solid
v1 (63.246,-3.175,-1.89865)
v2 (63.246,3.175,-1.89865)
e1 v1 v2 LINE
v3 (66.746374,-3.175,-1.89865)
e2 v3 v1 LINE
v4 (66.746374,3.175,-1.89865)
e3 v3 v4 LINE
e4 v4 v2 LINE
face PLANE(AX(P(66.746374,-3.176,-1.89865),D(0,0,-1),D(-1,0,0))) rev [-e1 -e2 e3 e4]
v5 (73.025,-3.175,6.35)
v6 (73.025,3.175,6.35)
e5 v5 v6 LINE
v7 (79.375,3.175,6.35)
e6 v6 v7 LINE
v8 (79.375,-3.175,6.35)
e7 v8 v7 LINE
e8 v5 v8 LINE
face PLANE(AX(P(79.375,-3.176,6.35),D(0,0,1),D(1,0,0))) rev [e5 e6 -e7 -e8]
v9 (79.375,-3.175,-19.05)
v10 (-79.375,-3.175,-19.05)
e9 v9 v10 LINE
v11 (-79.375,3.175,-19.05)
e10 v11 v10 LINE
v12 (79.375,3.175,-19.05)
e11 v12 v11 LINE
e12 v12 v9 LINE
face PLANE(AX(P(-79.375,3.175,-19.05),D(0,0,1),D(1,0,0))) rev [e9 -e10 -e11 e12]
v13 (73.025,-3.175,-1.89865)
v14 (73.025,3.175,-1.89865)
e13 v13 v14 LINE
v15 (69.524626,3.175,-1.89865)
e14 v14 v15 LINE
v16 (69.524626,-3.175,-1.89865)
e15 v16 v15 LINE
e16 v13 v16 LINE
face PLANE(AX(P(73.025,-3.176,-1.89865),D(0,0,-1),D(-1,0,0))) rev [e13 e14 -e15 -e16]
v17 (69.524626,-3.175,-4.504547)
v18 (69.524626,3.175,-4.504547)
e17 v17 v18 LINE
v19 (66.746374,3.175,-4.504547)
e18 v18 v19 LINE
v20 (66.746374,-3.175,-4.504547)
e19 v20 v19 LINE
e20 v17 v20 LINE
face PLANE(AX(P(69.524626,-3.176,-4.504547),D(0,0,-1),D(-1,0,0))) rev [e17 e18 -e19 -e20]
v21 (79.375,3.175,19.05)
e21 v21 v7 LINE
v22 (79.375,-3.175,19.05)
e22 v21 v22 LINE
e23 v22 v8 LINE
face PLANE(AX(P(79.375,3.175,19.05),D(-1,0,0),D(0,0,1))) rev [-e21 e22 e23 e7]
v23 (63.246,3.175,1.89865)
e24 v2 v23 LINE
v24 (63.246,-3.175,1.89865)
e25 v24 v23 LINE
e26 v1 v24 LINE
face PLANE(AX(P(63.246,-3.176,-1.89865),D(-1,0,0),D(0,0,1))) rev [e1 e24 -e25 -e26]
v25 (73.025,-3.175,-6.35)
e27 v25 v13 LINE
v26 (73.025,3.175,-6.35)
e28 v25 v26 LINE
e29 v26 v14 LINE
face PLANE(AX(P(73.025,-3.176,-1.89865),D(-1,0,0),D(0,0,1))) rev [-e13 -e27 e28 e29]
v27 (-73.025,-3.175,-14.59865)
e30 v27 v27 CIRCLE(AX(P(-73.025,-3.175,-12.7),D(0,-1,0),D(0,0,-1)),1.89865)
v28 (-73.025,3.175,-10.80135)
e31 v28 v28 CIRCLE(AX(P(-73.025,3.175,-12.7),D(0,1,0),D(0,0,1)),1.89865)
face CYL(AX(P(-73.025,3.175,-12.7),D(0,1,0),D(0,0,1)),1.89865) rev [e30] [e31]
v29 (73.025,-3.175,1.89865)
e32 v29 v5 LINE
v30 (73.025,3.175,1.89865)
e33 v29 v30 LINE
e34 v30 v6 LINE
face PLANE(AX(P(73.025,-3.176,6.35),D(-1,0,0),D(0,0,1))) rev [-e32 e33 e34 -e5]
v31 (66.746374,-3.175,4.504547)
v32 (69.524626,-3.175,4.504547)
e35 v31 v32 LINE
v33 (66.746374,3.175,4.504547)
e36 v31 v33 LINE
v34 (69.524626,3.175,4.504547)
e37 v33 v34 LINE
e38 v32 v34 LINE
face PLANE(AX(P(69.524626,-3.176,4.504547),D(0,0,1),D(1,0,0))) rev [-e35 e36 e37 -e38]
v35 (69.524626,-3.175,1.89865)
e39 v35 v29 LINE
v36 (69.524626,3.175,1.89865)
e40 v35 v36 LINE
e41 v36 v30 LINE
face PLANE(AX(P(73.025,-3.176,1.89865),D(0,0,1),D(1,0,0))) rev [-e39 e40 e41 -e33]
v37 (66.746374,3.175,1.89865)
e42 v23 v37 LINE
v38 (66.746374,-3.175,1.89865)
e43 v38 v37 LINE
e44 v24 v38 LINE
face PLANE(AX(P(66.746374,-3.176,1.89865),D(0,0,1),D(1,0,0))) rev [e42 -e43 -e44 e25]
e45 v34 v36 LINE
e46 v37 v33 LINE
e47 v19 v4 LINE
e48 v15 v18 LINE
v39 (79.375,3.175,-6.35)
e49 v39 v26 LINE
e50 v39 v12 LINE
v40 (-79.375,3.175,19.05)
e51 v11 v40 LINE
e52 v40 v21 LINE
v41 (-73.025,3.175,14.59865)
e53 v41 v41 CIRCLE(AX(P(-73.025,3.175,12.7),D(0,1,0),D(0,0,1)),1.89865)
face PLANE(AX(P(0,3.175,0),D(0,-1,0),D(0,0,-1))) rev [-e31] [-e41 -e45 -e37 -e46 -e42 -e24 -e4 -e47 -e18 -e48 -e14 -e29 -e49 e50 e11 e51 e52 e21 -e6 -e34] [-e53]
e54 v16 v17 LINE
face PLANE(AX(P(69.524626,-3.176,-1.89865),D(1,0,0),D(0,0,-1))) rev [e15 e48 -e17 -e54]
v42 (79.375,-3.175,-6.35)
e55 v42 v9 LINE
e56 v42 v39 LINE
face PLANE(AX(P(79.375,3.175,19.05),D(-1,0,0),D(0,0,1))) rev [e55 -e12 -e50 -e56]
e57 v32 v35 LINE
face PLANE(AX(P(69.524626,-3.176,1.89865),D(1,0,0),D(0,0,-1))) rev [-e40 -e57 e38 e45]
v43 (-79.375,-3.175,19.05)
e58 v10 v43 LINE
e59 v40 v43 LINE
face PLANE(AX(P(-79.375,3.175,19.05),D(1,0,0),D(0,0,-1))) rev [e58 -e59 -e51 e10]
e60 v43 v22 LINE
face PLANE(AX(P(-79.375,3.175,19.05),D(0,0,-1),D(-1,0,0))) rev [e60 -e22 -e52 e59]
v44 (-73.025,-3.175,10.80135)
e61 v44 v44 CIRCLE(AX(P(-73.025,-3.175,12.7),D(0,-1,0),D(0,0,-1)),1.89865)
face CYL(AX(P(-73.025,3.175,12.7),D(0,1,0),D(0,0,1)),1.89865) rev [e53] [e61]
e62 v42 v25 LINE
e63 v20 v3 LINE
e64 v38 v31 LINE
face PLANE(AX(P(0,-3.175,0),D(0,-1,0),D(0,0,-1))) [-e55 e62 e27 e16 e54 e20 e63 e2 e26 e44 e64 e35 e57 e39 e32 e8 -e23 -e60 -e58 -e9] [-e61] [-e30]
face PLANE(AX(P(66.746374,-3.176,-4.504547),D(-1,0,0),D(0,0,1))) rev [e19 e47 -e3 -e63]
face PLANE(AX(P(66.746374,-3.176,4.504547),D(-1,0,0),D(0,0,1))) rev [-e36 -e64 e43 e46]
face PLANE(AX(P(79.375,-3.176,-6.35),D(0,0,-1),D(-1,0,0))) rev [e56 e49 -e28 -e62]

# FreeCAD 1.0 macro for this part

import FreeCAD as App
import Part
import Sketcher
Q = App.Units.Quantity

doc = App.newDocument("Part")
params = doc.addObject("Spreadsheet::Sheet", "Params")
for row, (alias, value) in enumerate([
    ("sketch1_height", "1.5 in"),
    ("sketch1_width", "6.25 in"),
    ("pad1_length", "0.25 in"),
    ("sketch2_height", "0.5 in"),
    ("sketch2_width", "0.25 in"),
    ("hole_diameter", "0.1495 in"),
], start=1):
    params.set(f"A{row}", alias)
    params.set(f"B{row}", "=" + value)
    params.setAlias(f"B{row}", alias)

body = doc.addObject("PartDesign::Body", "Body")

sketch1 = body.newObject("Sketcher::SketchObject", "Sketch")
sketch1.AttachmentSupport = (doc.getObject("XZ_Plane"), [""])
sketch1.MapMode = "FlatFace"
sketch1.addGeometry([
    Part.LineSegment(App.Vector(-79, -19, 0), App.Vector(-79, 19, 0)),
    Part.LineSegment(App.Vector(-79, 19, 0), App.Vector(79, 19, 0)),
    Part.LineSegment(App.Vector(79, 19, 0), App.Vector(79, -19, 0)),
    Part.LineSegment(App.Vector(79, -19, 0), App.Vector(-79, -19, 0)),
], False)
sketch1.addConstraint([
    Sketcher.Constraint("Coincident", 0, 2, 1, 1),
    Sketcher.Constraint("Coincident", 1, 2, 2, 1),
    Sketcher.Constraint("Coincident", 2, 2, 3, 1),
    Sketcher.Constraint("Coincident", 3, 2, 0, 1),
    Sketcher.Constraint("Vertical", 0),
    Sketcher.Constraint("Horizontal", 1),
    Sketcher.Constraint("Vertical", 2),
    Sketcher.Constraint("Horizontal", 3),
    Sketcher.Constraint("Symmetric", 0, 2, 2, 2, -1, 1),
    Sketcher.Constraint("DistanceY", 0, 1, 0, 2, Q("1.5 in")),
    Sketcher.Constraint("DistanceX", 1, 1, 1, 2, Q("6.25 in")),
])
sketch1.setExpression("Constraints[9]", "Params.sketch1_height")
sketch1.setExpression("Constraints[10]", "Params.sketch1_width")
pad1 = body.newObject("PartDesign::Pad", "Pad")
pad1.Profile = sketch1
pad1.setExpression("Length", "Params.pad1_length")
pad1.Midplane = True

sketch2 = body.newObject("Sketcher::SketchObject", "Sketch001")
sketch2.AttachmentSupport = (doc.getObject("XZ_Plane"), [""])
sketch2.MapMode = "FlatFace"
sketch2.AttachmentOffset = App.Placement(App.Vector(0, 0, -0.125 * 25.4), App.Rotation())
sketch2.addGeometry([
    Part.LineSegment(App.Vector(79.4, 6.3, 0), App.Vector(79.4, -6.3, 0)),
    Part.LineSegment(App.Vector(79.4, -6.3, 0), App.Vector(73, -6.3, 0)),
    Part.LineSegment(App.Vector(73, -6.3, 0), App.Vector(73, -1.9, 0)),
    Part.LineSegment(App.Vector(73, -1.9, 0), App.Vector(69.5, -1.9, 0)),
    Part.LineSegment(App.Vector(69.5, -1.9, 0), App.Vector(69.5, -4.5, 0)),
    Part.LineSegment(App.Vector(69.5, -4.5, 0), App.Vector(66.7, -4.5, 0)),
    Part.LineSegment(App.Vector(66.7, -4.5, 0), App.Vector(66.7, -1.9, 0)),
    Part.LineSegment(App.Vector(66.7, -1.9, 0), App.Vector(63.2, -1.9, 0)),
    Part.LineSegment(App.Vector(63.2, -1.9, 0), App.Vector(63.2, 1.9, 0)),
    Part.LineSegment(App.Vector(63.2, 1.9, 0), App.Vector(66.7, 1.9, 0)),
    Part.LineSegment(App.Vector(66.7, 1.9, 0), App.Vector(66.7, 4.5, 0)),
    Part.LineSegment(App.Vector(66.7, 4.5, 0), App.Vector(69.5, 4.5, 0)),
    Part.LineSegment(App.Vector(69.5, 4.5, 0), App.Vector(69.5, 1.9, 0)),
    Part.LineSegment(App.Vector(69.5, 1.9, 0), App.Vector(73, 1.9, 0)),
    Part.LineSegment(App.Vector(73, 1.9, 0), App.Vector(73, 6.3, 0)),
    Part.LineSegment(App.Vector(73, 6.3, 0), App.Vector(79.4, 6.3, 0)),
], False)
sketch2.addConstraint([
    Sketcher.Constraint("Coincident", 0, 2, 1, 1),
    Sketcher.Constraint("Coincident", 1, 2, 2, 1),
    Sketcher.Constraint("Coincident", 2, 2, 3, 1),
    Sketcher.Constraint("Coincident", 3, 2, 4, 1),
    Sketcher.Constraint("Coincident", 4, 2, 5, 1),
    Sketcher.Constraint("Coincident", 5, 2, 6, 1),
    Sketcher.Constraint("Coincident", 6, 2, 7, 1),
    Sketcher.Constraint("Coincident", 7, 2, 8, 1),
    Sketcher.Constraint("Coincident", 8, 2, 9, 1),
    Sketcher.Constraint("Coincident", 9, 2, 10, 1),
    Sketcher.Constraint("Coincident", 10, 2, 11, 1),
    Sketcher.Constraint("Coincident", 11, 2, 12, 1),
    Sketcher.Constraint("Coincident", 12, 2, 13, 1),
    Sketcher.Constraint("Coincident", 13, 2, 14, 1),
    Sketcher.Constraint("Coincident", 14, 2, 15, 1),
    Sketcher.Constraint("Coincident", 15, 2, 0, 1),
    Sketcher.Constraint("Vertical", 0),
    Sketcher.Constraint("Horizontal", 1),
    Sketcher.Constraint("Vertical", 2),
    Sketcher.Constraint("Horizontal", 3),
    Sketcher.Constraint("Vertical", 4),
    Sketcher.Constraint("Horizontal", 5),
    Sketcher.Constraint("Vertical", 6),
    Sketcher.Constraint("Horizontal", 7),
    Sketcher.Constraint("Vertical", 8),
    Sketcher.Constraint("Horizontal", 9),
    Sketcher.Constraint("Vertical", 10),
    Sketcher.Constraint("Horizontal", 11),
    Sketcher.Constraint("Vertical", 12),
    Sketcher.Constraint("Horizontal", 13),
    Sketcher.Constraint("Vertical", 14),
    Sketcher.Constraint("Horizontal", 15),
    Sketcher.Constraint("Symmetric", 6, 2, 9, 2, -1),
    Sketcher.Constraint("Symmetric", 4, 2, 11, 2, -1),
    Sketcher.Constraint("Symmetric", 2, 2, 13, 2, -1),
    Sketcher.Constraint("Horizontal", 3, 2, 6, 2),
    Sketcher.Constraint("Equal", 3, 7),
    Sketcher.Constraint("Equal", 2, 14),
    Sketcher.Constraint("DistanceY", 0, 2, 0, 1, Q("0.5 in")),
    Sketcher.Constraint("DistanceX", 1, 2, 1, 1, Q("0.25 in")),
    Sketcher.Constraint("DistanceX", -1, 1, 7, 2, Q("2.49 in")),
    Sketcher.Constraint("DistanceY", 8, 1, 8, 2, Q("0.1495 in")),
    Sketcher.Constraint("DistanceX", -1, 1, 0, 2, Q("3.125 in")),
    Sketcher.Constraint("DistanceX", 5, 2, 5, 1, 2.778252),
    Sketcher.Constraint("DistanceY", 4, 2, 4, 1, 2.605897),
])
sketch2.setExpression("Constraints[38]", "Params.sketch2_height")
sketch2.setExpression("Constraints[39]", "Params.sketch2_width")
pocket1 = body.newObject("PartDesign::Pocket", "Pocket")
pocket1.Profile = sketch2
pocket1.Type = "UpToFirst"
pocket1.Reversed = True

sketch3 = body.newObject("Sketcher::SketchObject", "Sketch002")
sketch3.AttachmentSupport = (doc.getObject("XZ_Plane"), [""])
sketch3.MapMode = "FlatFace"
sketch3.AttachmentOffset = App.Placement(App.Vector(0, 0, -0.125 * 25.4), App.Rotation())
sketch3.addGeometry(Part.Circle(App.Vector(-73, 12.7, 0), App.Vector(0, 0, 1), 1.9), False)
sketch3.addConstraint([
    Sketcher.Constraint("Diameter", 0, Q("0.1495 in")),
    Sketcher.Constraint("DistanceY", -1, 1, 0, 3, Q("0.5 in")),
    Sketcher.Constraint("DistanceX", 0, 3, -1, 1, Q("2.875 in")),
])
doc.recompute()
hole = body.newObject("PartDesign::Hole", "Hole")
hole.Profile = sketch3
hole.ThreadType = "None"
hole.setExpression("Diameter", "Params.hole_diameter")
hole.DepthType = "ThroughAll"
hole.Reversed = True
doc.recompute()

mirrored = body.newObject("PartDesign::Mirrored", "Mirrored")
mirrored.Originals = [hole]
mirrored.MirrorPlane = (doc.getObject("XY_Plane"), [""])
body.Tip = mirrored

doc.recompute()
